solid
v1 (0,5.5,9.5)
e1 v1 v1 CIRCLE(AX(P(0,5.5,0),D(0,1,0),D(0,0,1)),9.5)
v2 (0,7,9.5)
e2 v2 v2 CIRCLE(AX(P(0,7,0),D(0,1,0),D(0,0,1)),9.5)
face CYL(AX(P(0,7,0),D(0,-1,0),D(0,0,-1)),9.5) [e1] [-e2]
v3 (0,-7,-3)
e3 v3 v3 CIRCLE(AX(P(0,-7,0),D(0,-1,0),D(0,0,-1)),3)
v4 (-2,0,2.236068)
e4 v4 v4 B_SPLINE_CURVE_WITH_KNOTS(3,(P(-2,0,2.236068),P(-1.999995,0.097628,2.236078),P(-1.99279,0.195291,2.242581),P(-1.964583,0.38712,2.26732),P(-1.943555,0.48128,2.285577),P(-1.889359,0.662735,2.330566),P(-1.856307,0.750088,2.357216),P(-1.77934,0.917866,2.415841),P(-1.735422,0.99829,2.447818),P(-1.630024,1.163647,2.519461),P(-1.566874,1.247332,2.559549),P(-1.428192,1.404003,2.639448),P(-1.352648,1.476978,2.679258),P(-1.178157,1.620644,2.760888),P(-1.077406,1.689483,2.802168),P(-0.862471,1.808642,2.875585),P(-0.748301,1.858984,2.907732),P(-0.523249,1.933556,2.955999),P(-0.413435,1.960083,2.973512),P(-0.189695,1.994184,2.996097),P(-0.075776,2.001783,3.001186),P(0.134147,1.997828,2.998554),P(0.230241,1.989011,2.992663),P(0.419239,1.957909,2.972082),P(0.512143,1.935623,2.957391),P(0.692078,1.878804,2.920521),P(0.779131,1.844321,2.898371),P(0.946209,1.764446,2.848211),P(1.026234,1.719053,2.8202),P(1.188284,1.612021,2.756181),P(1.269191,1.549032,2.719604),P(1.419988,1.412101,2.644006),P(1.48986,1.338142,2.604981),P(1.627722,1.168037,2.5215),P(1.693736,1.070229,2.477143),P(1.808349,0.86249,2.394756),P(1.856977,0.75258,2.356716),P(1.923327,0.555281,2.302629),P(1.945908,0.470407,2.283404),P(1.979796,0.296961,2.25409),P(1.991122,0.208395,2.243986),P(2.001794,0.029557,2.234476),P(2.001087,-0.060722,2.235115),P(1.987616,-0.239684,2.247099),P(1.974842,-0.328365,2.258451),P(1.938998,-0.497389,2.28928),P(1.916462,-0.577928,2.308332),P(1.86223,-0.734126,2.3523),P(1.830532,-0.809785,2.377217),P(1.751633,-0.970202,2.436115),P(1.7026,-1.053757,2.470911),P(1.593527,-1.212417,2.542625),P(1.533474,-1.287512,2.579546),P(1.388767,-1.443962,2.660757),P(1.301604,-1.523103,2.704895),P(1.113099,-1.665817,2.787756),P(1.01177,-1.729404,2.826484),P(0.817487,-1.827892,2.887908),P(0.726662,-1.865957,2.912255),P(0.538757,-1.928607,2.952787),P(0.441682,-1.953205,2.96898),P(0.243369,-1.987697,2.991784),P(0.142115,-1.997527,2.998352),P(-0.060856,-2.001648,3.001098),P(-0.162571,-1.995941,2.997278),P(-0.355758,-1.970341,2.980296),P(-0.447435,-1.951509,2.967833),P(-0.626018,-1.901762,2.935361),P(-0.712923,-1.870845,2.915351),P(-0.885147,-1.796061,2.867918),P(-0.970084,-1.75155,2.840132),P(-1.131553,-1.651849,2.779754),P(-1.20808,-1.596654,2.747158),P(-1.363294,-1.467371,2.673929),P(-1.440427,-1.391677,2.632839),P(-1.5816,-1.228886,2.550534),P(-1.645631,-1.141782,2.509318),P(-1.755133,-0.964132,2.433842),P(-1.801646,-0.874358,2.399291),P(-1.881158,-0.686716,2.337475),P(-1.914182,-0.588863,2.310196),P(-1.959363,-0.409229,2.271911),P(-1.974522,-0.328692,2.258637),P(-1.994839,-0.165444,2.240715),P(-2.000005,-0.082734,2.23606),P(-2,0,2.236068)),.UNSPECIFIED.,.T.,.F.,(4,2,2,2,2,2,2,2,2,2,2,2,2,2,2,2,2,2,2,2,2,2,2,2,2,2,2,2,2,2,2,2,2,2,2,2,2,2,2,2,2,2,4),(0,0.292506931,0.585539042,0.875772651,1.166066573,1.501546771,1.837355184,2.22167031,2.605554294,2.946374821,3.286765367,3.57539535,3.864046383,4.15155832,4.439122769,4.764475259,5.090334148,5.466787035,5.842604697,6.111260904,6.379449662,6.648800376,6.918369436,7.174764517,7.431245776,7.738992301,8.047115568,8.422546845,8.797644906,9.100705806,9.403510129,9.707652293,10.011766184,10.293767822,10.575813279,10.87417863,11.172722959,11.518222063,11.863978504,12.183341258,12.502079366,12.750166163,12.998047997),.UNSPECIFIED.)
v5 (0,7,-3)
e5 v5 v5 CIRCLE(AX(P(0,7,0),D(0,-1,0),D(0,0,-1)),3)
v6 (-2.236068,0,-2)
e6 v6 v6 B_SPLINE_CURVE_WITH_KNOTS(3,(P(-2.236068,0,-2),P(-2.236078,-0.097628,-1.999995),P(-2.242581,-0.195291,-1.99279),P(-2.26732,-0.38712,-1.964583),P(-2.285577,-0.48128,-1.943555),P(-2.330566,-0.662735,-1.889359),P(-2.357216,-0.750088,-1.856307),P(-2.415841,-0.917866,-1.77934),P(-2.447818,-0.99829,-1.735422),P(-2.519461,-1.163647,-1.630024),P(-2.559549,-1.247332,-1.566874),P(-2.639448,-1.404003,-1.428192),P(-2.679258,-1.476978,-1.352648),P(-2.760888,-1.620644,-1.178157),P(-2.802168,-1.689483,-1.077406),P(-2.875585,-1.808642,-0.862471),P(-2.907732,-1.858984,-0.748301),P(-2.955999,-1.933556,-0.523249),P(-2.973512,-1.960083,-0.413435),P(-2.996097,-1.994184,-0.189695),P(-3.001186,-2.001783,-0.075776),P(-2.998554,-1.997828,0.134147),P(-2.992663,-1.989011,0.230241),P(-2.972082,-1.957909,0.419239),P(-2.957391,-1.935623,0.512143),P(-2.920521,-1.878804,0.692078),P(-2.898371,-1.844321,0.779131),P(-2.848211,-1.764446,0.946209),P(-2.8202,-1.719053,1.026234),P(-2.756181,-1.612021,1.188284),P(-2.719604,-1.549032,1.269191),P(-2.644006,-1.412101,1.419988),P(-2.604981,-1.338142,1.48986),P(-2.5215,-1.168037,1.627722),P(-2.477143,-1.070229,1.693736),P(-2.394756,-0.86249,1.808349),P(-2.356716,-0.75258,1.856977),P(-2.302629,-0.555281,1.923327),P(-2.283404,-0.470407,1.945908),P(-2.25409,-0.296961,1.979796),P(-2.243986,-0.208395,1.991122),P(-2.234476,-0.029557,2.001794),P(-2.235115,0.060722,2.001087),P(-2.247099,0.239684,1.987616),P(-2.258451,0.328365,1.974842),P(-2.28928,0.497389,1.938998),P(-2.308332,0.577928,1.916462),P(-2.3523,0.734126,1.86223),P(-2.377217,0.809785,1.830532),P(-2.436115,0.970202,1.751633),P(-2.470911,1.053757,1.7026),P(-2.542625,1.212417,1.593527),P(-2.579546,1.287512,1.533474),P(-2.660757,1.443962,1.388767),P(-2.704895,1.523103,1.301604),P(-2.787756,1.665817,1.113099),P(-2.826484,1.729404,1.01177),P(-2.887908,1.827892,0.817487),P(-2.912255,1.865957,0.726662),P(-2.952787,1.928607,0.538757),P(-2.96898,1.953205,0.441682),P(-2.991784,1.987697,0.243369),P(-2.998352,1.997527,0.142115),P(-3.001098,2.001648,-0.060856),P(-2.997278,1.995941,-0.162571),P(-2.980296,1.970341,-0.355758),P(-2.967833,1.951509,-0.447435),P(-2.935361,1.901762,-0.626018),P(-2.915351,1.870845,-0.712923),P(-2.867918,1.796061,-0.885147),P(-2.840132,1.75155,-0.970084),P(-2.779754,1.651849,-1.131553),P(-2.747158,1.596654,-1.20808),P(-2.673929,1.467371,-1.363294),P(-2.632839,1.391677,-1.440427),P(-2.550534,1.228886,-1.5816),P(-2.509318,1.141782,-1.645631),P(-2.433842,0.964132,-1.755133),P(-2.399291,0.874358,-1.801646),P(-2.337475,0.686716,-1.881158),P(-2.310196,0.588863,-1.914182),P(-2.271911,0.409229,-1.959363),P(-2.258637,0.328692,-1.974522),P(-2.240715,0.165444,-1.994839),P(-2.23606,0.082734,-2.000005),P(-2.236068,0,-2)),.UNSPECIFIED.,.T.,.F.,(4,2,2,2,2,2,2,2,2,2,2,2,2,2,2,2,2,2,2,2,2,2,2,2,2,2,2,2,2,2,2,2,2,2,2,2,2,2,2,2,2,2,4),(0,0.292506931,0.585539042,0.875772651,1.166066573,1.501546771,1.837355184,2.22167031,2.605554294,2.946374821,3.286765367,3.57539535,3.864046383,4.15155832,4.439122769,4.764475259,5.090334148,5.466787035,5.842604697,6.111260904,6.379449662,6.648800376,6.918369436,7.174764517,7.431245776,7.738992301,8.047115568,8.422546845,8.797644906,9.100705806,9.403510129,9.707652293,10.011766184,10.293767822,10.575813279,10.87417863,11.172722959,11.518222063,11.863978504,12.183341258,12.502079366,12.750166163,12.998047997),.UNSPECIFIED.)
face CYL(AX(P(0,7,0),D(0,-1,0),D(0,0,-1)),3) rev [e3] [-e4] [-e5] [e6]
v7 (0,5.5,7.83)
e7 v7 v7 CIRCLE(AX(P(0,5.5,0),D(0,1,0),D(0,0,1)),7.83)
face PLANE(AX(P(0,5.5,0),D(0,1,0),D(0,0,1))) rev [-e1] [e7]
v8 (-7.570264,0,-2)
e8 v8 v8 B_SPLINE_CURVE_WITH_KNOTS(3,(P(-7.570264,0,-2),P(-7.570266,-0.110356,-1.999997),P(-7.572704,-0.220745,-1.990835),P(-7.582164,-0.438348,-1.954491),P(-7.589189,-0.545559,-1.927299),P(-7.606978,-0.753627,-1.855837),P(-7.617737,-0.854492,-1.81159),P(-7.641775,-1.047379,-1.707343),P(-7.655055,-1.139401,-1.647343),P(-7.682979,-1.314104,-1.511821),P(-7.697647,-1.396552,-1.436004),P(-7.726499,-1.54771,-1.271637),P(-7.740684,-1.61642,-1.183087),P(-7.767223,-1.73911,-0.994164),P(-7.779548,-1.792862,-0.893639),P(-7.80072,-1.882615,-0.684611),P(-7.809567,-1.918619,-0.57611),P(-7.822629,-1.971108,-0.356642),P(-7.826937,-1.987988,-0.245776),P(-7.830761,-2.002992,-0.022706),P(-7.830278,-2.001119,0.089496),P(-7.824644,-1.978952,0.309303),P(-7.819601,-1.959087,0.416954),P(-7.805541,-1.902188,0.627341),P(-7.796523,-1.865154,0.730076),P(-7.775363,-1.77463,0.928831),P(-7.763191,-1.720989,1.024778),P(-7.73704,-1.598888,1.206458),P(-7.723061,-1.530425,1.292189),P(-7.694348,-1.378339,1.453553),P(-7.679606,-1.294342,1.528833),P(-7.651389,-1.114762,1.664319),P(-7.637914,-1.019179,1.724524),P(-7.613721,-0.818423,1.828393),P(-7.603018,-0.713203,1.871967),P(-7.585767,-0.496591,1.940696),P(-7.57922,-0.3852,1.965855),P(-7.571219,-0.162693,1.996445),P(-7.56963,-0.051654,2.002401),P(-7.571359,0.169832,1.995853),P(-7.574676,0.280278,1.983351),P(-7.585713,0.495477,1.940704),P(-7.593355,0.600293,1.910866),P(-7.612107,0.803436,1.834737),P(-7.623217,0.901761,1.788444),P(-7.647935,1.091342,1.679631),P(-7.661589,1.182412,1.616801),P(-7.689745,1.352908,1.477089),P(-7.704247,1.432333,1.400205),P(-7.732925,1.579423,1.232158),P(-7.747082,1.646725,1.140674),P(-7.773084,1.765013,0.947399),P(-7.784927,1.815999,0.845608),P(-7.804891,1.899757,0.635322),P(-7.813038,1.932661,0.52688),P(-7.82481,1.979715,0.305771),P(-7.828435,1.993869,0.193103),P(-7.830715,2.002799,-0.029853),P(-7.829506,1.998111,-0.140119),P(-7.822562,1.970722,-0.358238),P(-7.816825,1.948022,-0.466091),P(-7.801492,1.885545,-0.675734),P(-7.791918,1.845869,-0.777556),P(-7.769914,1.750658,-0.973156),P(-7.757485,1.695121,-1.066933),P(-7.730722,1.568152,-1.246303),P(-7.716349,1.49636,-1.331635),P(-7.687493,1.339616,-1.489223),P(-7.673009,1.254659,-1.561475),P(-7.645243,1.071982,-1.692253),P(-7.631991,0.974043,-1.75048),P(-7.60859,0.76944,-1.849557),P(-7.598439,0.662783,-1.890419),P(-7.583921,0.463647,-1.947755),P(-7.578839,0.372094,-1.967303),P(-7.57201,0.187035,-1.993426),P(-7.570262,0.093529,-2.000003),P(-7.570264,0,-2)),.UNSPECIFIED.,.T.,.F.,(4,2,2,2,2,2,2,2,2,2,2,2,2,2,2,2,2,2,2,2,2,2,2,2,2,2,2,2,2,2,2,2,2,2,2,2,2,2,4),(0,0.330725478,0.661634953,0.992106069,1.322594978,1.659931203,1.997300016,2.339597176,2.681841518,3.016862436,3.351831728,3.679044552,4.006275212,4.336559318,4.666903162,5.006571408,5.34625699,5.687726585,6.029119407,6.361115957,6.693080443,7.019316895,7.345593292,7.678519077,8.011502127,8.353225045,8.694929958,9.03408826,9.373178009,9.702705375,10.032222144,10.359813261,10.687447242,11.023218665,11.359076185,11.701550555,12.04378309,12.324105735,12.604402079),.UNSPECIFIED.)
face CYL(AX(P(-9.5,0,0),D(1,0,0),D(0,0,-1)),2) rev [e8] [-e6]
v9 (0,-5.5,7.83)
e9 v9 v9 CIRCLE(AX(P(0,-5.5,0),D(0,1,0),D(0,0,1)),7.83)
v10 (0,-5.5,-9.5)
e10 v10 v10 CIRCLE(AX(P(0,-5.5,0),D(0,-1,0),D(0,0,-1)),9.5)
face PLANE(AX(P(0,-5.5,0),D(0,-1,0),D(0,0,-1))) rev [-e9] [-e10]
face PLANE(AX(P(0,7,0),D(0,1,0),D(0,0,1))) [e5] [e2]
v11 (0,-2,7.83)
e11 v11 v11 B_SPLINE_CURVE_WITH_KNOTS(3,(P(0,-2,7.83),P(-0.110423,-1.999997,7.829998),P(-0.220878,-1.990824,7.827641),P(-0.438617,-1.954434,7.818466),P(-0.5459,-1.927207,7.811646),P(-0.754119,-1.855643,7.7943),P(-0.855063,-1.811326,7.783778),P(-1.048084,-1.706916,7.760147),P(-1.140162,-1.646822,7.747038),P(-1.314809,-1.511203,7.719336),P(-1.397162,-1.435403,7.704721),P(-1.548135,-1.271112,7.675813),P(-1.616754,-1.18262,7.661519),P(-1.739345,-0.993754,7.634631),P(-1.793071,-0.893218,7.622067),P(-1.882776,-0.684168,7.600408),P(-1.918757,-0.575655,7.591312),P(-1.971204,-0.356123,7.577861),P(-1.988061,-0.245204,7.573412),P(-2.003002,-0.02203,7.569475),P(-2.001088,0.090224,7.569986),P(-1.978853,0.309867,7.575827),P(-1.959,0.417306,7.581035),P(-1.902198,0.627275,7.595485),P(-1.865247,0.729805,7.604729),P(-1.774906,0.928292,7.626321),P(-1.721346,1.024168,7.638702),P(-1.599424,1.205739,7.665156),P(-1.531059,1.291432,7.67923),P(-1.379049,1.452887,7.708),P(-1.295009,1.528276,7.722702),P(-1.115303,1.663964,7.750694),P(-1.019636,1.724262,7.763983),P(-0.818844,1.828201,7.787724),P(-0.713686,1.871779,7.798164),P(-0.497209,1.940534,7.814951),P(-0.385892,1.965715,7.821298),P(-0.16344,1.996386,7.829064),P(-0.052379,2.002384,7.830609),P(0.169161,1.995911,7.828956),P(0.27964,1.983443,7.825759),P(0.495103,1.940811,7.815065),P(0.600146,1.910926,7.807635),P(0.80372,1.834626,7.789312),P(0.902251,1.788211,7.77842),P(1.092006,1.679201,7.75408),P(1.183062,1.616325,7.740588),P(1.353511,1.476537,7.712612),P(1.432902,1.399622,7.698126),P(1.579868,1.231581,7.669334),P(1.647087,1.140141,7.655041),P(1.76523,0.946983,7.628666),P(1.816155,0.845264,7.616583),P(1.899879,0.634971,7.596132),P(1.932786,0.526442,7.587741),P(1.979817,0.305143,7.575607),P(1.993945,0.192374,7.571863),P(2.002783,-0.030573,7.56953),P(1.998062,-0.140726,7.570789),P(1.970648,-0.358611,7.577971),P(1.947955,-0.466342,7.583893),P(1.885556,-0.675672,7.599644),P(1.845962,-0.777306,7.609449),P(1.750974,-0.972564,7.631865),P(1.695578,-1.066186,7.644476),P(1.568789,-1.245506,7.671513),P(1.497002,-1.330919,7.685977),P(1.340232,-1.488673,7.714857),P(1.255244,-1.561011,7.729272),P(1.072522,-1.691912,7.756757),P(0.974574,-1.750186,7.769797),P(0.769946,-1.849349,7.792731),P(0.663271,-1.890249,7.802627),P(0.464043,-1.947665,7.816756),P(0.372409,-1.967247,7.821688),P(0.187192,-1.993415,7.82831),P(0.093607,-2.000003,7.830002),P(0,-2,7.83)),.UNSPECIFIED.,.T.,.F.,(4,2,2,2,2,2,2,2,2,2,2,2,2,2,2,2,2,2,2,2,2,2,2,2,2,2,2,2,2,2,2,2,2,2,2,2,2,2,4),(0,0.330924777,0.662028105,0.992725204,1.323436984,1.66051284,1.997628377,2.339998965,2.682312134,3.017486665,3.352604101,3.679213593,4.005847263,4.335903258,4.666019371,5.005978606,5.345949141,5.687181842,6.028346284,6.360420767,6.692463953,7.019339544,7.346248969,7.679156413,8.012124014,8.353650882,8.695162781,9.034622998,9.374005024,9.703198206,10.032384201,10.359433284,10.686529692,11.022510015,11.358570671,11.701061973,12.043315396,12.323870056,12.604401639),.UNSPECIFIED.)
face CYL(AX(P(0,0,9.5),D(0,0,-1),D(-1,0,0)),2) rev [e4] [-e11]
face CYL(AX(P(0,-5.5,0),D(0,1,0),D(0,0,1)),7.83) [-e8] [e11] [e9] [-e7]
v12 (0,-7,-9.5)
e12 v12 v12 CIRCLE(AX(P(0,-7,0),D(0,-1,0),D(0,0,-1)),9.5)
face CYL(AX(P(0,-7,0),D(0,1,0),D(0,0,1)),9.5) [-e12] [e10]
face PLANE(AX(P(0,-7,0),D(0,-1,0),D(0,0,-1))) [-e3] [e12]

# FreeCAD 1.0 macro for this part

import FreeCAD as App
import Part
import Sketcher

doc = App.newDocument("Part")
body = doc.addObject("PartDesign::Body", "Body")

# Sketch on XZ plane
sketch1 = body.newObject("Sketcher::SketchObject", "Sketch")
sketch1.AttachmentSupport = (doc.getObject("XZ_Plane"), [""])
sketch1.MapMode = "FlatFace"
sketch1.addGeometry(Part.Circle(App.Vector(0, 0, 0), App.Vector(0, 0, 1), 8), False)
sketch1.addConstraint([
    Sketcher.Constraint("Coincident", 0, 3, -1, 1),
    Sketcher.Constraint("Diameter", 0, 15.66),
])
pad1 = body.newObject("PartDesign::Pad", "Pad")
pad1.Profile = sketch1
pad1.Type = "TwoLengths"
pad1.Length = 5.5
pad1.Length2 = 5.5
pad1.Reversed = True

# Sketch on XZ plane
sketch2 = body.newObject("Sketcher::SketchObject", "Sketch001")
sketch2.AttachmentSupport = (doc.getObject("XZ_Plane"), [""])
sketch2.MapMode = "FlatFace"
sketch2.AttachmentOffset = App.Placement(App.Vector(0, 0, 5.5), App.Rotation())
sketch2.addGeometry(Part.Circle(App.Vector(0, 0, 0), App.Vector(0, 0, 1), 10), False)
sketch2.addConstraint([
    Sketcher.Constraint("Coincident", 0, 3, -1, 1),
    Sketcher.Constraint("Diameter", 0, 19.0),
])
pad2 = body.newObject("PartDesign::Pad", "Pad001")
pad2.Profile = sketch2
pad2.Length = 1.5

# Sketch on XZ plane
sketch3 = body.newObject("Sketcher::SketchObject", "Sketch002")
sketch3.AttachmentSupport = (doc.getObject("XZ_Plane"), [""])
sketch3.MapMode = "FlatFace"
sketch3.AttachmentOffset = App.Placement(App.Vector(0, 0, -5.5), App.Rotation())
sketch3.addGeometry(Part.Circle(App.Vector(0, 0, 0), App.Vector(0, 0, 1), 10), False)
sketch3.addConstraint([
    Sketcher.Constraint("Coincident", 0, 3, -1, 1),
    Sketcher.Constraint("Diameter", 0, 19.0),
])
pad3 = body.newObject("PartDesign::Pad", "Pad002")
pad3.Profile = sketch3
pad3.Length = 1.5
pad3.Reversed = True

# Sketch on XZ plane
sketch4 = body.newObject("Sketcher::SketchObject", "Sketch003")
sketch4.AttachmentSupport = (doc.getObject("XZ_Plane"), [""])
sketch4.MapMode = "FlatFace"
sketch4.AttachmentOffset = App.Placement(App.Vector(0, 0, 7), App.Rotation())
sketch4.addGeometry(Part.Circle(App.Vector(0, 0, 0), App.Vector(0, 0, 1), 3), False)
sketch4.addConstraint([
    Sketcher.Constraint("Coincident", 0, 3, -1, 1),
    Sketcher.Constraint("Diameter", 0, 6.0),
])
pocket1 = body.newObject("PartDesign::Pocket", "Pocket")
pocket1.Profile = sketch4
pocket1.Type = "ThroughAll"

# Sketch on XY plane
sketch5 = body.newObject("Sketcher::SketchObject", "Sketch004")
sketch5.AttachmentSupport = (doc.getObject("XY_Plane"), [""])
sketch5.MapMode = "FlatFace"
sketch5.addGeometry(Part.Circle(App.Vector(0, 0, 0), App.Vector(0, 0, 1), 2), False)
sketch5.addConstraint([
    Sketcher.Constraint("Coincident", 0, 3, -1, 1),
    Sketcher.Constraint("Diameter", 0, 4.0),
])
pocket2 = body.newObject("PartDesign::Pocket", "Pocket001")
pocket2.Profile = sketch5
pocket2.Type = "ThroughAll"
pocket2.Reversed = True

# Sketch on YZ plane
sketch6 = body.newObject("Sketcher::SketchObject", "Sketch005")
sketch6.AttachmentSupport = (doc.getObject("YZ_Plane"), [""])
sketch6.MapMode = "FlatFace"
sketch6.addGeometry(Part.Circle(App.Vector(0, 0, 0), App.Vector(0, 0, 1), 2), False)
sketch6.addConstraint([
    Sketcher.Constraint("Coincident", 0, 3, -1, 1),
    Sketcher.Constraint("Diameter", 0, 4.0),
])
pocket3 = body.newObject("PartDesign::Pocket", "Pocket002")
pocket3.Profile = sketch6
pocket3.Type = "ThroughAll"

doc.recompute()
